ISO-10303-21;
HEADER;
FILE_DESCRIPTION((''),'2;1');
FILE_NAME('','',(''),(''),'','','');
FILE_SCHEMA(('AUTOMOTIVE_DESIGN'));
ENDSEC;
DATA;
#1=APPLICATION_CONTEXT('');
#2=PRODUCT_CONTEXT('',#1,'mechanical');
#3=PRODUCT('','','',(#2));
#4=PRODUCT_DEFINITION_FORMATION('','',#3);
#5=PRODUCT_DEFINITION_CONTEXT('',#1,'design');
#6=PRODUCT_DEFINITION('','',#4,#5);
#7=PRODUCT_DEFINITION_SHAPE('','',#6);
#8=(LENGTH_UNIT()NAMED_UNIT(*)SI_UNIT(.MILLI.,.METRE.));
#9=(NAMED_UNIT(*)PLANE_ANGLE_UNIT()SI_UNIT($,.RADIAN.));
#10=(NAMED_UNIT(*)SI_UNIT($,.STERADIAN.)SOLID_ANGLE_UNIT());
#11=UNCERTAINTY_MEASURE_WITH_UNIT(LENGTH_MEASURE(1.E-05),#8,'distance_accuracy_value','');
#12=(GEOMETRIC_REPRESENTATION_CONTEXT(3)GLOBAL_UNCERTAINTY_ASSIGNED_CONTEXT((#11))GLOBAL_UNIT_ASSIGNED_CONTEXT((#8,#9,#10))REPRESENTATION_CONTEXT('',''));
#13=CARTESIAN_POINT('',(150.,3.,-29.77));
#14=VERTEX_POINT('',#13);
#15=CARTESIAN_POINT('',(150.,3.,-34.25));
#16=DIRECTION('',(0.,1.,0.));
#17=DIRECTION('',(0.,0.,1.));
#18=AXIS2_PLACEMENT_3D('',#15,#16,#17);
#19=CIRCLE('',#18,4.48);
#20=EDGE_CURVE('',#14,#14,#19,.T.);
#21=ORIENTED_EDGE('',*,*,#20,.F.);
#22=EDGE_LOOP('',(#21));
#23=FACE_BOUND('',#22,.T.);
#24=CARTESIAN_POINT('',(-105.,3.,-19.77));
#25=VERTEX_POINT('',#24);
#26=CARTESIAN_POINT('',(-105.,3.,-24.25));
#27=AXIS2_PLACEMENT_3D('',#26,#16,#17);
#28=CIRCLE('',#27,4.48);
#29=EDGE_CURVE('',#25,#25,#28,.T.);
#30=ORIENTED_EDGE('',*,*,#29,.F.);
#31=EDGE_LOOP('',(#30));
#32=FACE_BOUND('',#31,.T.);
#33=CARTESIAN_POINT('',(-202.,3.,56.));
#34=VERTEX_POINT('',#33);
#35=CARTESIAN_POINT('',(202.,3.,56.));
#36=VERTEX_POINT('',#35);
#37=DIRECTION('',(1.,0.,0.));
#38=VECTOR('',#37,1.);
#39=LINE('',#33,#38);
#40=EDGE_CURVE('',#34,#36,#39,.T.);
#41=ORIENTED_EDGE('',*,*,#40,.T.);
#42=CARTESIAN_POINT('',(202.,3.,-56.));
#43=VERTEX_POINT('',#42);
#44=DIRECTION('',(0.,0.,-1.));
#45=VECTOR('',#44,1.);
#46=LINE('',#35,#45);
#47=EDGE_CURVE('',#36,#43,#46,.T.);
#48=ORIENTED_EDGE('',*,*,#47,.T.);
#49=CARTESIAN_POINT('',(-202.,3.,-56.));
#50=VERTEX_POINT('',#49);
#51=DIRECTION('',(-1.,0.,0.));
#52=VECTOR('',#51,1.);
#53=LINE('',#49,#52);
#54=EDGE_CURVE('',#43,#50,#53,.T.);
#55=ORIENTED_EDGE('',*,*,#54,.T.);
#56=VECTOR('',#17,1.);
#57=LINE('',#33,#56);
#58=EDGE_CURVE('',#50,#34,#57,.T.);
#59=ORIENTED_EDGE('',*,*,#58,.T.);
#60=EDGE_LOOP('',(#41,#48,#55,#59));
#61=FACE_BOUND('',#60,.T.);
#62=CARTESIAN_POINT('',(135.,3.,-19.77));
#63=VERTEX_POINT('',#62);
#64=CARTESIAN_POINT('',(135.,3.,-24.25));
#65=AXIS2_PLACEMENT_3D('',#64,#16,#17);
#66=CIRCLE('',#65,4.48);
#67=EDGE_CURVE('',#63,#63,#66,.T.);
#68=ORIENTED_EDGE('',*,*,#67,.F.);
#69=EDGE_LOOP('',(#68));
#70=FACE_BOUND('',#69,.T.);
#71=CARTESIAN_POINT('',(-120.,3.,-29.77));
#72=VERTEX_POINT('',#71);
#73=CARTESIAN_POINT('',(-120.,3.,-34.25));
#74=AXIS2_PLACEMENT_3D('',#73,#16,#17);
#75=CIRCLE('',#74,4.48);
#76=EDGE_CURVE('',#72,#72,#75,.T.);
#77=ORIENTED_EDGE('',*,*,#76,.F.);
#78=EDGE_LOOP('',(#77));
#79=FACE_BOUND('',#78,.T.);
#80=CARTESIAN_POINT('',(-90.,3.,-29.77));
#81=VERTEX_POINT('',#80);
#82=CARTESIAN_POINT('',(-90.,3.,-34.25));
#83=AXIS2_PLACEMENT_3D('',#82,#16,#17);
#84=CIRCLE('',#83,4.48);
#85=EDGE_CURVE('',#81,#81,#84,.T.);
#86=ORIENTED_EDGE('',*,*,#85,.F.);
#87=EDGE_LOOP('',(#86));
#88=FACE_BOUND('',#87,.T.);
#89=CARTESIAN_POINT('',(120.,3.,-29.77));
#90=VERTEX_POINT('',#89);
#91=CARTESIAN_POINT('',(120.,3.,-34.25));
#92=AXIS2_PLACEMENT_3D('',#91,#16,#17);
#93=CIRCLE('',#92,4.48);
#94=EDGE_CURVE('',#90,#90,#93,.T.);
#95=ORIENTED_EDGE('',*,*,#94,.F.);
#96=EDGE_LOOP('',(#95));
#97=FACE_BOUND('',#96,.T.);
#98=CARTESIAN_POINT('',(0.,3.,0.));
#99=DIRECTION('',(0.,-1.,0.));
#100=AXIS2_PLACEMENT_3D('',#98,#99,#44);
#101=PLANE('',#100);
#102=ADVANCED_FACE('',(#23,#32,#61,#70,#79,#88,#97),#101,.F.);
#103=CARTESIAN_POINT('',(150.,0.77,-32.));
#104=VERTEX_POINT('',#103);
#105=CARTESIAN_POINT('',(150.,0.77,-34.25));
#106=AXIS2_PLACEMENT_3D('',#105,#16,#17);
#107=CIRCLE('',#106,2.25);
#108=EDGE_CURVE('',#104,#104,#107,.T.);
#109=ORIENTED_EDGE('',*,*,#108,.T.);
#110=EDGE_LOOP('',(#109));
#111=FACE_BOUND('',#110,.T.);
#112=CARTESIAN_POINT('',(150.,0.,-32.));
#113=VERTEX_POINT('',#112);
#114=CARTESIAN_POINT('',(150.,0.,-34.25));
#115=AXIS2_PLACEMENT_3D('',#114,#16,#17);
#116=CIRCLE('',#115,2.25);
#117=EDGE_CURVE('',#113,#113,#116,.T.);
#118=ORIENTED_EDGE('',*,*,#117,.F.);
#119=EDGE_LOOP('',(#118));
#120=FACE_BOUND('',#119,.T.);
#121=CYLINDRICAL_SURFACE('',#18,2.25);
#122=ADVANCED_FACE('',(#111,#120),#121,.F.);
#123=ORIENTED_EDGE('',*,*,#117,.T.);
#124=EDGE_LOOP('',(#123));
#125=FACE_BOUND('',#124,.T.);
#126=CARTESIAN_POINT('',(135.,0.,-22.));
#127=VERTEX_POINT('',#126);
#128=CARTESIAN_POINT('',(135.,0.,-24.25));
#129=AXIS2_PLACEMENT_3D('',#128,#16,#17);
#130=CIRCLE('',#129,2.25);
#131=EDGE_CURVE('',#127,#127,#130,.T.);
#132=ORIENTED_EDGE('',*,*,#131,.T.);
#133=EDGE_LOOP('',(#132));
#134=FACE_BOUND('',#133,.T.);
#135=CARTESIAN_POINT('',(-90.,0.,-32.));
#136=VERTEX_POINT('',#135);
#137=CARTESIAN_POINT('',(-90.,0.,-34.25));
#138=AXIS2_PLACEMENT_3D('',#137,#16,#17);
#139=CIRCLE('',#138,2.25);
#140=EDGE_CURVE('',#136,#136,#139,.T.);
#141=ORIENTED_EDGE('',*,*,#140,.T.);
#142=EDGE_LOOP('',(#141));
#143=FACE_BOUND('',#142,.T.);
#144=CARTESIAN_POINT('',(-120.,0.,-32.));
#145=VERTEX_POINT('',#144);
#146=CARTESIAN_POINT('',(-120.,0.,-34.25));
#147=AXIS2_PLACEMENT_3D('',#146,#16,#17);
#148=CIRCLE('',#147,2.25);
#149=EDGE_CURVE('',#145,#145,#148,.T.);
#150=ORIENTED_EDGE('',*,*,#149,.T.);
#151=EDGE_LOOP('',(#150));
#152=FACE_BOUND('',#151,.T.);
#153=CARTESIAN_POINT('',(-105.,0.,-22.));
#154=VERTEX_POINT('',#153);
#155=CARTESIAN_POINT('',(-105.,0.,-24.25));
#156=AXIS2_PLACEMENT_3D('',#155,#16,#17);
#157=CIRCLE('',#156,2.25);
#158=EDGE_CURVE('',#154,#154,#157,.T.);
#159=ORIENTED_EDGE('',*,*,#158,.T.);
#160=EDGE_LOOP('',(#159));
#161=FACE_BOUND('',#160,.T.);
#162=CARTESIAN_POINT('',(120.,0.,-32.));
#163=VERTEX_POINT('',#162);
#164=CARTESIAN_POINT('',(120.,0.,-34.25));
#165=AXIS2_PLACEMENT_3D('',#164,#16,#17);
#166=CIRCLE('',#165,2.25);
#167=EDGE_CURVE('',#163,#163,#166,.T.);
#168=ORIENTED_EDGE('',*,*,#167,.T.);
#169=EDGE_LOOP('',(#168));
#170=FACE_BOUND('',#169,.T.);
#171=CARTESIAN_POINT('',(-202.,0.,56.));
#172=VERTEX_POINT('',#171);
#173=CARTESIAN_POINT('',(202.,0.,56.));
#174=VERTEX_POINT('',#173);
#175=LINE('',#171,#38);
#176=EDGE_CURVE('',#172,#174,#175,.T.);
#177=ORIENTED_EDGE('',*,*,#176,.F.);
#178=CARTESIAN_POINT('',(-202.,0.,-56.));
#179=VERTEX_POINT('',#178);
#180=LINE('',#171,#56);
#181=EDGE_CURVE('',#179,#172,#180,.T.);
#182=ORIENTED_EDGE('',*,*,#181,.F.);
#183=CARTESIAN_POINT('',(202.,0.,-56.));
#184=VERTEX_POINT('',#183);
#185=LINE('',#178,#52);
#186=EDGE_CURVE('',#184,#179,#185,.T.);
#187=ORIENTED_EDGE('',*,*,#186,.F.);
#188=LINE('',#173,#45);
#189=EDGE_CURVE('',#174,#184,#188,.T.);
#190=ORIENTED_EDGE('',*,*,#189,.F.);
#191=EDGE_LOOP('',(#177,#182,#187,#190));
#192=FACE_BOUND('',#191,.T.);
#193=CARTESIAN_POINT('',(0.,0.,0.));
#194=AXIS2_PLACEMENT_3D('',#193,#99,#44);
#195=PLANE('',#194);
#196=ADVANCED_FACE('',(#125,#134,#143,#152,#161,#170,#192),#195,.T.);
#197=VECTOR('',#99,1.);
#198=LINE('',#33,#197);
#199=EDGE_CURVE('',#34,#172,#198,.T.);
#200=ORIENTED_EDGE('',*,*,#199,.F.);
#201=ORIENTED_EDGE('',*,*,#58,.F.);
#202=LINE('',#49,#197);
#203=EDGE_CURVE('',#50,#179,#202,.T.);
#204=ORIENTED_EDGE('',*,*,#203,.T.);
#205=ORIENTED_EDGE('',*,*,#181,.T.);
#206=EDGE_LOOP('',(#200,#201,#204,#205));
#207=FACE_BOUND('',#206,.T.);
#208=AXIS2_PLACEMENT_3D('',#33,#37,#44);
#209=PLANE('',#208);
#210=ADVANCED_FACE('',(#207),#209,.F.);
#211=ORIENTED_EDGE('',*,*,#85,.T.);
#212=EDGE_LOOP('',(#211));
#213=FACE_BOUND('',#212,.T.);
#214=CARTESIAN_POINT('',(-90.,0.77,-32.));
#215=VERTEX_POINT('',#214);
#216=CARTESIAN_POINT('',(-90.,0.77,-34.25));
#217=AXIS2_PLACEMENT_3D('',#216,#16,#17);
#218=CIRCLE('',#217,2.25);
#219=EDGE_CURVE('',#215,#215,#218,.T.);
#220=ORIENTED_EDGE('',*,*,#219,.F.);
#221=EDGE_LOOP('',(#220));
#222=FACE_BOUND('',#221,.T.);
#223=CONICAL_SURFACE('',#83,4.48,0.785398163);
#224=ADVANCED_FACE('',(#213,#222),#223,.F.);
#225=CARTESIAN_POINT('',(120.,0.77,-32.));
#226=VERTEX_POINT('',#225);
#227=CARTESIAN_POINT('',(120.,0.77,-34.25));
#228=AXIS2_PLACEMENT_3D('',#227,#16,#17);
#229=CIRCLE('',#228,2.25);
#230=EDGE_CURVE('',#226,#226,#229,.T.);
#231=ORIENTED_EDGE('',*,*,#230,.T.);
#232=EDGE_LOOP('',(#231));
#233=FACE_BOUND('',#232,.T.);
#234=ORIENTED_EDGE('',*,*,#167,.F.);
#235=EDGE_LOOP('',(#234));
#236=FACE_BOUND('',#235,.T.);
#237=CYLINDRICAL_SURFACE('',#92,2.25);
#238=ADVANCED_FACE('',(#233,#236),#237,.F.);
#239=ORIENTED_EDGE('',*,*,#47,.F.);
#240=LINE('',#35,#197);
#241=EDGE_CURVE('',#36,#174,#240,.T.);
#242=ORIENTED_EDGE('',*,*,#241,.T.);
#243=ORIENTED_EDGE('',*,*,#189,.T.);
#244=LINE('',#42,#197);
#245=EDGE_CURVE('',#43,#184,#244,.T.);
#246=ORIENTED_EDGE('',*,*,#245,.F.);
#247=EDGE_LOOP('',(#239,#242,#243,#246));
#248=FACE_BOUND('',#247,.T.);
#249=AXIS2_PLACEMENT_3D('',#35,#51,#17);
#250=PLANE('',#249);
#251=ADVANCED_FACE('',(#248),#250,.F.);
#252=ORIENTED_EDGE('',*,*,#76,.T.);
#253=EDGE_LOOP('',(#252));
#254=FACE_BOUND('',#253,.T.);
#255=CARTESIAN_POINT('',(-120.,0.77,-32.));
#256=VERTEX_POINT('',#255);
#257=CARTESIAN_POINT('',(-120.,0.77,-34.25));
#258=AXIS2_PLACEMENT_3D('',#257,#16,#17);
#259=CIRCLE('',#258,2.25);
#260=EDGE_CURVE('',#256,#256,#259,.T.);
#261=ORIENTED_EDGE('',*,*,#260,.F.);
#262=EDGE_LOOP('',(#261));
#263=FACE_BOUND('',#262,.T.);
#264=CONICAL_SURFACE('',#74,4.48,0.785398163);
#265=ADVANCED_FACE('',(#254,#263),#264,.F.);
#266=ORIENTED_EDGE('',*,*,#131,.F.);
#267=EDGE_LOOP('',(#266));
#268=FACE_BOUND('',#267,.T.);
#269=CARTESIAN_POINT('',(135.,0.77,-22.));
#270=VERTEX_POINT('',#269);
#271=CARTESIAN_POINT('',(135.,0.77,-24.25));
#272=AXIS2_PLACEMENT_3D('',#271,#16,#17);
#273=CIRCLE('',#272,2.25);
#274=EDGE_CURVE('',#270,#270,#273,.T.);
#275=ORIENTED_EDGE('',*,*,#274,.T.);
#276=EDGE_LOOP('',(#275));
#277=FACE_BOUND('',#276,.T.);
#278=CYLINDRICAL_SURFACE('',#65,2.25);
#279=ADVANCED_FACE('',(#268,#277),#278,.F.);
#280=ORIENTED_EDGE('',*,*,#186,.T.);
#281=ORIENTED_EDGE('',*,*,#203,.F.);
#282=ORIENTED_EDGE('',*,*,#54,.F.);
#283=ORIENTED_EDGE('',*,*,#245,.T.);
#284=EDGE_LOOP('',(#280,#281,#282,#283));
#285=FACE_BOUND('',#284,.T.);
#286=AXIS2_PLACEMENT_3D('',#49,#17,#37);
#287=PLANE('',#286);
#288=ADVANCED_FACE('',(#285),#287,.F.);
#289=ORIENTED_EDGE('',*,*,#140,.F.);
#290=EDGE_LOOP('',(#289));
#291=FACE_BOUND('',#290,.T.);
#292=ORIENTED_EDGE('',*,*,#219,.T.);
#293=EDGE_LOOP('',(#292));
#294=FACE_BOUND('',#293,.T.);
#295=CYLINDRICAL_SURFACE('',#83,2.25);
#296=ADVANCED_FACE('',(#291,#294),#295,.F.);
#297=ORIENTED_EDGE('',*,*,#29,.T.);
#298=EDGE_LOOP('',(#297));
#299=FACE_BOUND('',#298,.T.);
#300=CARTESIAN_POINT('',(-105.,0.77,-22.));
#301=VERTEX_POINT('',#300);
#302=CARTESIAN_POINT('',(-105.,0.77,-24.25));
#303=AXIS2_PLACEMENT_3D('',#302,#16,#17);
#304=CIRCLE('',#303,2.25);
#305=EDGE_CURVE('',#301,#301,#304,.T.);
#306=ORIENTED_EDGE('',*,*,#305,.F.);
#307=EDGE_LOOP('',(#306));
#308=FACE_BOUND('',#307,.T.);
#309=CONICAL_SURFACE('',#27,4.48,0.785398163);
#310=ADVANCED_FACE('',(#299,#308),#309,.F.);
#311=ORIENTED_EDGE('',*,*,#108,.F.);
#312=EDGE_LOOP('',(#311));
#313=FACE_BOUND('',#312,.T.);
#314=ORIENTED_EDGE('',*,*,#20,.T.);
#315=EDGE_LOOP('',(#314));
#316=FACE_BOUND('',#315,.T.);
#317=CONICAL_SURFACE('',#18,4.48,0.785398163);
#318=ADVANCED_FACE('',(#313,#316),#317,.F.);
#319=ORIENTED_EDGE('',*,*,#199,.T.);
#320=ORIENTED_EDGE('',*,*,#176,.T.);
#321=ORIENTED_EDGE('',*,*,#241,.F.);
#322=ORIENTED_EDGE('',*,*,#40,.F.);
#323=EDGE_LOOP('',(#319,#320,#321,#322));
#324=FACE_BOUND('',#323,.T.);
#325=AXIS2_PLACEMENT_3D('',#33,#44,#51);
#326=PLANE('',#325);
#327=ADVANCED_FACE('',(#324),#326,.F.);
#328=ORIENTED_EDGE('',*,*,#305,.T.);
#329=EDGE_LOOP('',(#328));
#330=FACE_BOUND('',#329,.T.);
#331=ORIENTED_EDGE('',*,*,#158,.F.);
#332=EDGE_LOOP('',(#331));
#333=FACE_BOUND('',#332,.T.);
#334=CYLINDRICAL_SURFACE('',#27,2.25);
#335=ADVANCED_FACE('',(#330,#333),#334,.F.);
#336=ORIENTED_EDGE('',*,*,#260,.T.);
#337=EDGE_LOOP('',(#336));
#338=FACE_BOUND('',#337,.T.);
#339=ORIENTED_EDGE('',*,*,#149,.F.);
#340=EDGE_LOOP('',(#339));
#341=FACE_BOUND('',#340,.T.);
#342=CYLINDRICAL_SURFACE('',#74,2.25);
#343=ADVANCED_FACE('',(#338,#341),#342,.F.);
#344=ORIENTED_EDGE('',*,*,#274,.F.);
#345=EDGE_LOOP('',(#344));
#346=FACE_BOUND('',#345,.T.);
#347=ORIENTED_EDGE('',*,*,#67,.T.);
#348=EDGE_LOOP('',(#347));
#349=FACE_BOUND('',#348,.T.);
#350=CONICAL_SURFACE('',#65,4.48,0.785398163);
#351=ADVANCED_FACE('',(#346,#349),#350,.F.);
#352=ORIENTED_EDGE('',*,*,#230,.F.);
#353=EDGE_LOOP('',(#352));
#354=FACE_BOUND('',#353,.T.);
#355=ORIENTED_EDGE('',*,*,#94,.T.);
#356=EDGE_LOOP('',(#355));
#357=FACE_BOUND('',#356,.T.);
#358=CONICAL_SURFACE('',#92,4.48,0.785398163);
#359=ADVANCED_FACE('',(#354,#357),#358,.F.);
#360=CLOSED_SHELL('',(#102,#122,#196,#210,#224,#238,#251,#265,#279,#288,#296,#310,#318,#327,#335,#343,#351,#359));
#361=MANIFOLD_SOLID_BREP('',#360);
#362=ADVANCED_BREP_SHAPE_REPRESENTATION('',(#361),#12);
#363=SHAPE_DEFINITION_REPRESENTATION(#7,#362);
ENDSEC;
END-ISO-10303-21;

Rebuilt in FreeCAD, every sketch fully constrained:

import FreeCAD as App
import Part
import Sketcher

V = App.Vector
Q = App.Units.Quantity

doc = App.newDocument("Part")
body = doc.addObject("PartDesign::Body", "Body")

sketch1 = body.newObject("Sketcher::SketchObject", "Sketch")
sketch1.AttachmentSupport = (doc.getObject("XZ_Plane"), [""])
sketch1.MapMode = "FlatFace"
sketch1.addGeometry([
    Part.LineSegment(V(-202, -56, 0), V(-202, 56, 0)),
    Part.LineSegment(V(-202, 56, 0), V(202, 56, 0)),
    Part.LineSegment(V(202, 56, 0), V(202, -56, 0)),
    Part.LineSegment(V(202, -56, 0), V(-202, -56, 0)),
], False)
sketch1.addConstraint([
    Sketcher.Constraint("Coincident", 0, 2, 1, 1),
    Sketcher.Constraint("Coincident", 1, 2, 2, 1),
    Sketcher.Constraint("Coincident", 2, 2, 3, 1),
    Sketcher.Constraint("Coincident", 3, 2, 0, 1),
    Sketcher.Constraint("Vertical", 0),
    Sketcher.Constraint("Horizontal", 1),
    Sketcher.Constraint("Vertical", 2),
    Sketcher.Constraint("Horizontal", 3),
    Sketcher.Constraint("Symmetric", 0, 2, 2, 2, -1, 1),
    Sketcher.Constraint("DistanceX", 1, 1, 1, 2, 404.0),
    Sketcher.Constraint("DistanceY", 0, 1, 0, 2, 112.0),
])
pad1 = body.newObject("PartDesign::Pad", "Pad")
pad1.Profile = sketch1
pad1.Length = 3
pad1.Reversed = True

sketch2 = body.newObject("Sketcher::SketchObject", "Sketch001")
sketch2.AttachmentSupport = (doc.getObject("YZ_Plane"), [""])
sketch2.MapMode = "FlatFace"
sketch2.AttachmentOffset = App.Placement(V(0, 0, 120), App.Rotation())
sketch2.addGeometry([
    Part.LineSegment(V(0, -34.2, 0), V(3, -34.2, 0)),
    Part.LineSegment(V(3, -34.2, 0), V(3, -29.8, 0)),
    Part.LineSegment(V(3, -29.8, 0), V(0.8, -32, 0)),
    Part.LineSegment(V(0.8, -32, 0), V(0, -32, 0)),
    Part.LineSegment(V(0, -32, 0), V(0, -34.2, 0)),
], False)
sketch2.addGeometry(Part.LineSegment(V(3, -34.2, 0), V(0, -34.2, 0)), True)
sketch2.addConstraint([
    Sketcher.Constraint("Coincident", 0, 2, 1, 1),
    Sketcher.Constraint("Coincident", 1, 2, 2, 1),
    Sketcher.Constraint("Coincident", 2, 2, 3, 1),
    Sketcher.Constraint("Coincident", 3, 2, 4, 1),
    Sketcher.Constraint("Coincident", 4, 2, 0, 1),
    Sketcher.Constraint("Horizontal", 0),
    Sketcher.Constraint("Vertical", 1),
    Sketcher.Constraint("Horizontal", 3),
    Sketcher.Constraint("Vertical", 4),
    Sketcher.Constraint("Horizontal", 5),
    Sketcher.Constraint("Coincident", 5, 1, 0, 2),
    Sketcher.Constraint("PointOnObject", 3, 2, -2),
    Sketcher.Constraint("PointOnObject", 5, 2, -2),
    Sketcher.Constraint("DistanceX", 0, 1, 0, 2, 3.0),
    Sketcher.Constraint("Angle", 2, Q("-135 deg")),
    Sketcher.Constraint("DistanceY", 2, 2, -1, 1, 32.0),
    Sketcher.Constraint("DistanceX", 3, 2, 3, 1, 0.77),
    Sketcher.Constraint("DistanceY", 1, 1, 1, 2, 4.48),
])
groove = body.newObject("PartDesign::Groove", "Groove")
groove.Profile = sketch2
groove.ReferenceAxis = (sketch2, ["Axis0"])
groove.Angle = 360
doc.recompute()

linearpattern = body.newObject("PartDesign::LinearPattern", "LinearPattern")
linearpattern.Originals = [groove]
linearpattern.Direction = (doc.getObject("X_Axis"), [""])
linearpattern.Mode = "offset"
linearpattern.Offset = 30
linearpattern.Occurrences = 2
body.Tip = linearpattern
doc.recompute()

datumline = body.newObject("PartDesign::Line", "DatumLine")
datumline.Placement = App.Placement(V(0, 0, 0), App.Rotation(V(0, 0, 1), V(0.832050294, 0, 0.554700196)))
linearpattern2 = body.newObject("PartDesign::LinearPattern", "LinearPattern001")
linearpattern2.Originals = [groove]
linearpattern2.Direction = (datumline, [""])
linearpattern2.Mode = "offset"
linearpattern2.Offset = 18.027756
linearpattern2.Occurrences = 2
body.Tip = linearpattern2
doc.recompute()

linearpattern3 = body.newObject("PartDesign::LinearPattern", "LinearPattern002")
linearpattern3.Originals = [groove]
linearpattern3.Direction = (doc.getObject("X_Axis"), [""])
linearpattern3.Mode = "offset"
linearpattern3.Offset = 240
linearpattern3.Occurrences = 2
linearpattern3.Reversed = True
body.Tip = linearpattern3

sketch3 = body.newObject("Sketcher::SketchObject", "Sketch002")
sketch3.AttachmentSupport = (doc.getObject("YZ_Plane"), [""])
sketch3.MapMode = "FlatFace"
sketch3.AttachmentOffset = App.Placement(V(0, 0, -90), App.Rotation())
sketch3.addGeometry([
    Part.LineSegment(V(0, -34.2, 0), V(3, -34.2, 0)),
    Part.LineSegment(V(3, -34.2, 0), V(3, -29.8, 0)),
    Part.LineSegment(V(3, -29.8, 0), V(0.8, -32, 0)),
    Part.LineSegment(V(0.8, -32, 0), V(0, -32, 0)),
    Part.LineSegment(V(0, -32, 0), V(0, -34.2, 0)),
], False)
sketch3.addGeometry(Part.LineSegment(V(3, -34.2, 0), V(0, -34.2, 0)), True)
sketch3.addConstraint([
    Sketcher.Constraint("Coincident", 0, 2, 1, 1),
    Sketcher.Constraint("Coincident", 1, 2, 2, 1),
    Sketcher.Constraint("Coincident", 2, 2, 3, 1),
    Sketcher.Constraint("Coincident", 3, 2, 4, 1),
    Sketcher.Constraint("Coincident", 4, 2, 0, 1),
    Sketcher.Constraint("Horizontal", 0),
    Sketcher.Constraint("Vertical", 1),
    Sketcher.Constraint("Horizontal", 3),
    Sketcher.Constraint("Vertical", 4),
    Sketcher.Constraint("Horizontal", 5),
    Sketcher.Constraint("Coincident", 5, 1, 0, 2),
    Sketcher.Constraint("PointOnObject", 3, 2, -2),
    Sketcher.Constraint("PointOnObject", 5, 2, -2),
    Sketcher.Constraint("DistanceX", 0, 1, 0, 2, 3.0),
    Sketcher.Constraint("Angle", 2, Q("-135 deg")),
    Sketcher.Constraint("DistanceY", 2, 2, -1, 1, 32.0),
    Sketcher.Constraint("DistanceX", 3, 2, 3, 1, 0.77),
    Sketcher.Constraint("DistanceY", 1, 1, 1, 2, 4.48),
])
groove2 = body.newObject("PartDesign::Groove", "Groove001")
groove2.Profile = sketch3
groove2.ReferenceAxis = (sketch3, ["Axis0"])
groove2.Angle = 360

sketch4 = body.newObject("Sketcher::SketchObject", "Sketch003")
sketch4.AttachmentSupport = (doc.getObject("YZ_Plane"), [""])
sketch4.MapMode = "FlatFace"
sketch4.AttachmentOffset = App.Placement(V(0, 0, -105), App.Rotation())
sketch4.addGeometry([
    Part.LineSegment(V(0, -24.2, 0), V(3, -24.2, 0)),
    Part.LineSegment(V(3, -24.2, 0), V(3, -19.8, 0)),
    Part.LineSegment(V(3, -19.8, 0), V(0.8, -22, 0)),
    Part.LineSegment(V(0.8, -22, 0), V(0, -22, 0)),
    Part.LineSegment(V(0, -22, 0), V(0, -24.2, 0)),
], False)
sketch4.addGeometry(Part.LineSegment(V(3, -24.2, 0), V(0, -24.2, 0)), True)
sketch4.addConstraint([
    Sketcher.Constraint("Coincident", 0, 2, 1, 1),
    Sketcher.Constraint("Coincident", 1, 2, 2, 1),
    Sketcher.Constraint("Coincident", 2, 2, 3, 1),
    Sketcher.Constraint("Coincident", 3, 2, 4, 1),
    Sketcher.Constraint("Coincident", 4, 2, 0, 1),
    Sketcher.Constraint("Horizontal", 0),
    Sketcher.Constraint("Vertical", 1),
    Sketcher.Constraint("Horizontal", 3),
    Sketcher.Constraint("Vertical", 4),
    Sketcher.Constraint("Horizontal", 5),
    Sketcher.Constraint("Coincident", 5, 1, 0, 2),
    Sketcher.Constraint("PointOnObject", 3, 2, -2),
    Sketcher.Constraint("PointOnObject", 5, 2, -2),
    Sketcher.Constraint("DistanceX", 0, 1, 0, 2, 3.0),
    Sketcher.Constraint("Angle", 2, Q("-135 deg")),
    Sketcher.Constraint("DistanceY", 2, 2, -1, 1, 22.0),
    Sketcher.Constraint("DistanceX", 3, 2, 3, 1, 0.77),
    Sketcher.Constraint("DistanceY", 1, 1, 1, 2, 4.48),
])
groove3 = body.newObject("PartDesign::Groove", "Groove002")
groove3.Profile = sketch4
groove3.ReferenceAxis = (sketch4, ["Axis0"])
groove3.Angle = 360

doc.recompute()
